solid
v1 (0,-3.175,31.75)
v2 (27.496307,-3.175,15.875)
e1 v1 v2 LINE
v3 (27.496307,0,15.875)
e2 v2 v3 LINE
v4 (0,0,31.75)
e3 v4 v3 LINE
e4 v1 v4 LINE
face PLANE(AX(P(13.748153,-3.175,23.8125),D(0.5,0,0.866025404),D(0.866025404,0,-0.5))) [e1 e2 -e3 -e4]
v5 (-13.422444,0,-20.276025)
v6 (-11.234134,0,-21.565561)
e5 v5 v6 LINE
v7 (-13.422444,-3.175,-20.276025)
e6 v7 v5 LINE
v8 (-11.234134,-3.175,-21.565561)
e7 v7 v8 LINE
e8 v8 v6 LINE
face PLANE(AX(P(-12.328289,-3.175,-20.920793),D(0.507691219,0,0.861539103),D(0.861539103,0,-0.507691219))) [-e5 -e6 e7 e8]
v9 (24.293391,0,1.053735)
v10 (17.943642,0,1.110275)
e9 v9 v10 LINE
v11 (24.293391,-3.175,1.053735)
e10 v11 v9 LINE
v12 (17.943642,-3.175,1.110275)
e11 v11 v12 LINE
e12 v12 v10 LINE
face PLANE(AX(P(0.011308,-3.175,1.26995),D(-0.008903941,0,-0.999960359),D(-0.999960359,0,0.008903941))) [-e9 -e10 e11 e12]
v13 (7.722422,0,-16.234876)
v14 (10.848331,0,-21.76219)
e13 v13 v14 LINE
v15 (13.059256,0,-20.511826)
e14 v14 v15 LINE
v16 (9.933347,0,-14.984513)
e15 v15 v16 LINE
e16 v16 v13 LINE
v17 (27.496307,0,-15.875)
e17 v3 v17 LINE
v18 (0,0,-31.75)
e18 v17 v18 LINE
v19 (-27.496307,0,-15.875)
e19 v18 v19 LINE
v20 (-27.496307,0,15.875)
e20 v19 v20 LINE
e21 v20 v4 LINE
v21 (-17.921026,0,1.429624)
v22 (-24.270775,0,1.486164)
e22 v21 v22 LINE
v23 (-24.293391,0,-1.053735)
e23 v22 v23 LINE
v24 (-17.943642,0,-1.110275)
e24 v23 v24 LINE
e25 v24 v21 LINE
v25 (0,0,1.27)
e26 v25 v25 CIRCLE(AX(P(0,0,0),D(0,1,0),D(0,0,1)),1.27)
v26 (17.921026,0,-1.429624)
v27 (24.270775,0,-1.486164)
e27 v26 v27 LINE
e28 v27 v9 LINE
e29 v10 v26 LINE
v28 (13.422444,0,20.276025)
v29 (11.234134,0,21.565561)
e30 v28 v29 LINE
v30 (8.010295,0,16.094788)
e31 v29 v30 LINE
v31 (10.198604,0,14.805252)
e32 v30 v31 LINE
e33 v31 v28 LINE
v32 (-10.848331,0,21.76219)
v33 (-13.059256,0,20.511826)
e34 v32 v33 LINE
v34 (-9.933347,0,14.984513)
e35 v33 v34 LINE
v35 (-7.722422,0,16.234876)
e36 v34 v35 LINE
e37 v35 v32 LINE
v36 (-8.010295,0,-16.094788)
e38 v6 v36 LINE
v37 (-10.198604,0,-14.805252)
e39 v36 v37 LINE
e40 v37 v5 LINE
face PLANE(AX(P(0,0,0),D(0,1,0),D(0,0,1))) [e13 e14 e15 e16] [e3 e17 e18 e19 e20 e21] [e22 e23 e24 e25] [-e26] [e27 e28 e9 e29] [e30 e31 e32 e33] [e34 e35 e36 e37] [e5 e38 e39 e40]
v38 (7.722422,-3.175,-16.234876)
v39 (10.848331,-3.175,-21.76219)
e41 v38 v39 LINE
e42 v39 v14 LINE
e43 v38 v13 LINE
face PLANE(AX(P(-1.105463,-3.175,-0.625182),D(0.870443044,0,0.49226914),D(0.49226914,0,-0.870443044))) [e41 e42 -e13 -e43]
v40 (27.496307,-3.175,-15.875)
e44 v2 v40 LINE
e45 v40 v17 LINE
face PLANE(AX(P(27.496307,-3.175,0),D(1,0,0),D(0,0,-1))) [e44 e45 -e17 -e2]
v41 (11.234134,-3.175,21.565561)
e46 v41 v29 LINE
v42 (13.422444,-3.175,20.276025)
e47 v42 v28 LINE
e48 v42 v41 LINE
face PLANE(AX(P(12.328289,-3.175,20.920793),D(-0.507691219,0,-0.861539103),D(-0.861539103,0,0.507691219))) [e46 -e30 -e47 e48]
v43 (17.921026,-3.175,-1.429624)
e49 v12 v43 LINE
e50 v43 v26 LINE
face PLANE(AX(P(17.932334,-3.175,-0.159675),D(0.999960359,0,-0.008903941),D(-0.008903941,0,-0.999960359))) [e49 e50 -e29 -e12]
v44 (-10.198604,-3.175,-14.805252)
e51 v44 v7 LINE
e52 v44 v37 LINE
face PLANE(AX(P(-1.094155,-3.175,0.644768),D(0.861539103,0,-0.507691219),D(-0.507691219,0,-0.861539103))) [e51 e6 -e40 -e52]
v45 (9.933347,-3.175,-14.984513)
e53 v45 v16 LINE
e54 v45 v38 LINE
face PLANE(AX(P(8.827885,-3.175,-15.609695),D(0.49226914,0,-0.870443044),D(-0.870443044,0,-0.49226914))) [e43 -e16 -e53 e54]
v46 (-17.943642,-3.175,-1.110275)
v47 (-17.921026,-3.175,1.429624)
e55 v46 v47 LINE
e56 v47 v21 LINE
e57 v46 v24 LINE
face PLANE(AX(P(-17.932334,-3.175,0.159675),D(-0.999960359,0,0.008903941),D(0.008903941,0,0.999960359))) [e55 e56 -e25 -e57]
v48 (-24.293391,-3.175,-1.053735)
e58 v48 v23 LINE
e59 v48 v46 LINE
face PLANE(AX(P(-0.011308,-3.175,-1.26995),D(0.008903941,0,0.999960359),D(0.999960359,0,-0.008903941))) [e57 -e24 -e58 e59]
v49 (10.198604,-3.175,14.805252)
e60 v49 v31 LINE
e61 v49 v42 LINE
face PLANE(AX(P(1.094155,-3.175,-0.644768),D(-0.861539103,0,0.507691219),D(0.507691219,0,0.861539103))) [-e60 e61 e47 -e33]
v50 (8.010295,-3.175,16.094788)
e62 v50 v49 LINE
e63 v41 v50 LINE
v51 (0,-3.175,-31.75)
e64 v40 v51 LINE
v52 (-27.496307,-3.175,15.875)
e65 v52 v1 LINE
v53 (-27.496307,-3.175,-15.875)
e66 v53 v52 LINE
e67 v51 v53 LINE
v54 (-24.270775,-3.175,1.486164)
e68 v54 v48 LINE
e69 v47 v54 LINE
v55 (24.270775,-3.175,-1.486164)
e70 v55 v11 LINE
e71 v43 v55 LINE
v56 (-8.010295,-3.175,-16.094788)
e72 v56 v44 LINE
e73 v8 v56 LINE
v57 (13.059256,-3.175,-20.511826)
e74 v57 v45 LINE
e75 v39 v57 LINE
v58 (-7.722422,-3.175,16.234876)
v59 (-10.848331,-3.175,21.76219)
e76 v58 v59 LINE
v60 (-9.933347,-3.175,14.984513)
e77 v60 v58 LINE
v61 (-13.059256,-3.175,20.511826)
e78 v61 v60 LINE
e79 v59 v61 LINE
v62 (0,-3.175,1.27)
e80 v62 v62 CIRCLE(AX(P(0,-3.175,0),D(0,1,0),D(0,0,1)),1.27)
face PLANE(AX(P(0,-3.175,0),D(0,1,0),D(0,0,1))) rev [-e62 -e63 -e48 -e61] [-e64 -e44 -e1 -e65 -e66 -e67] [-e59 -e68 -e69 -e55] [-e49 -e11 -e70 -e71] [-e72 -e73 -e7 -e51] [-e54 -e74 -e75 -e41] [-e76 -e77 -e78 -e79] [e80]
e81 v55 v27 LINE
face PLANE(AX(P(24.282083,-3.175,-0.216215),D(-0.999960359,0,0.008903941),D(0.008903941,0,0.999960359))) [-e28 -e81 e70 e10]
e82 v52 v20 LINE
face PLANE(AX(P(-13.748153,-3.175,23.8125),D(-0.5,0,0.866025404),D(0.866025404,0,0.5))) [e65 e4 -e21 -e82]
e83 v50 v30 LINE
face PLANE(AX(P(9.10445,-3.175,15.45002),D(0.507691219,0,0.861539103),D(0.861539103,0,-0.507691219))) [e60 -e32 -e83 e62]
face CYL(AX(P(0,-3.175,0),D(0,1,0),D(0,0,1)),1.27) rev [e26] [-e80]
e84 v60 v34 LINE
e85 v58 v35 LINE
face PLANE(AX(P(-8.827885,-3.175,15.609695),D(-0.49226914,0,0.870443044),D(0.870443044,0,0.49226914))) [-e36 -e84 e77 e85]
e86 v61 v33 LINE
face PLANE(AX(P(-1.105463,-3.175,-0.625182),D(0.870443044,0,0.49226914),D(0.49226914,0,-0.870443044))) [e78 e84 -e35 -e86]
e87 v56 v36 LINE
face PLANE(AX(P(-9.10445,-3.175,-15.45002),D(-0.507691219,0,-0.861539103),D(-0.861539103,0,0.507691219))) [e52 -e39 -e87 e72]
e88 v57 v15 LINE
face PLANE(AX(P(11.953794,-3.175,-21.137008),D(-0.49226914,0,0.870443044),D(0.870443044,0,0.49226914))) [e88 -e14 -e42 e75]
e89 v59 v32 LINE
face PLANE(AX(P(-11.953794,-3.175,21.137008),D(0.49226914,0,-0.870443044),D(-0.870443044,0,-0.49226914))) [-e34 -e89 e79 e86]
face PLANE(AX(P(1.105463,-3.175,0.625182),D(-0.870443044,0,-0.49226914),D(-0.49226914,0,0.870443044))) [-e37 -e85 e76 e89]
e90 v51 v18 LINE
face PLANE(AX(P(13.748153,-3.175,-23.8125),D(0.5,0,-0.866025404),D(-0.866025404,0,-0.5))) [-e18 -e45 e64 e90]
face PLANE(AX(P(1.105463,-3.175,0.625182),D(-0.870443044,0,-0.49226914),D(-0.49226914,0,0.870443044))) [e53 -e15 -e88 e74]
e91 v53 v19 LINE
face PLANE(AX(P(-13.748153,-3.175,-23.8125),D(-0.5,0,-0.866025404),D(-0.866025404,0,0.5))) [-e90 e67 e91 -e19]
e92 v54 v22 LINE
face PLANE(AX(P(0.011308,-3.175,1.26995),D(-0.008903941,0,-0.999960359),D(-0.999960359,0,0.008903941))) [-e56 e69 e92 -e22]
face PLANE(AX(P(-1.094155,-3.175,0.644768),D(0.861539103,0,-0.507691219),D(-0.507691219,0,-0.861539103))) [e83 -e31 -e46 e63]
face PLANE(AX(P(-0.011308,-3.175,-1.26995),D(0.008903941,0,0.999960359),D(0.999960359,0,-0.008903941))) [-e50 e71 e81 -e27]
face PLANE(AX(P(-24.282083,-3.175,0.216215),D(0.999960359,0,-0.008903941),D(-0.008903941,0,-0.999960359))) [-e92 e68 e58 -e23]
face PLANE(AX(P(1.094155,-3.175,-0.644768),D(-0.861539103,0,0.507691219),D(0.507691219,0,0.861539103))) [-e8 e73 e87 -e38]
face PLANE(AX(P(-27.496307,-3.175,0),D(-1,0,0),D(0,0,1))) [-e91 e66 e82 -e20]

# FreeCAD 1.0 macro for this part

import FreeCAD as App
import Part
import Sketcher
from FreeCAD import Vector
Q = App.Units.Quantity

doc = App.newDocument("Part")
body = doc.addObject("PartDesign::Body", "Body")

sketch1 = body.newObject("Sketcher::SketchObject", "Sketch")
sketch1.AttachmentSupport = (doc.getObject("XZ_Plane"), [""])
sketch1.MapMode = "FlatFace"
sketch1.addGeometry([
    Part.LineSegment(Vector(27.496307, -15.875, 0), Vector(0, -31.75, 0)),
    Part.LineSegment(Vector(0, -31.75, 0), Vector(-27.496307, -15.875, 0)),
    Part.LineSegment(Vector(-27.496307, -15.875, 0), Vector(-27.496307, 15.875, 0)),
    Part.LineSegment(Vector(-27.496307, 15.875, 0), Vector(0, 31.75, 0)),
    Part.LineSegment(Vector(0, 31.75, 0), Vector(27.496307, 15.875, 0)),
    Part.LineSegment(Vector(27.496307, 15.875, 0), Vector(27.496307, -15.875, 0)),
    Part.LineSegment(Vector(-9.933347, 14.984513, 0), Vector(-7.722422, 16.234876, 0)),
    Part.LineSegment(Vector(-7.722422, 16.234876, 0), Vector(-10.848331, 21.76219, 0)),
    Part.LineSegment(Vector(-10.848331, 21.76219, 0), Vector(-13.059256, 20.511826, 0)),
    Part.LineSegment(Vector(-13.059256, 20.511826, 0), Vector(-9.933347, 14.984513, 0)),
    Part.LineSegment(Vector(-17.943642, -1.110275, 0), Vector(-17.921026, 1.429624, 0)),
    Part.LineSegment(Vector(-17.921026, 1.429624, 0), Vector(-24.270775, 1.486164, 0)),
    Part.LineSegment(Vector(-24.270775, 1.486164, 0), Vector(-24.293391, -1.053735, 0)),
    Part.LineSegment(Vector(-24.293391, -1.053735, 0), Vector(-17.943642, -1.110275, 0)),
    Part.LineSegment(Vector(8.010295, 16.094788, 0), Vector(10.198604, 14.805252, 0)),
    Part.LineSegment(Vector(10.198604, 14.805252, 0), Vector(13.422444, 20.276025, 0)),
    Part.LineSegment(Vector(13.422444, 20.276025, 0), Vector(11.234134, 21.565561, 0)),
    Part.LineSegment(Vector(11.234134, 21.565561, 0), Vector(8.010295, 16.094788, 0)),
    Part.LineSegment(Vector(-10.198604, -14.805252, 0), Vector(-13.422444, -20.276025, 0)),
    Part.LineSegment(Vector(-13.422444, -20.276025, 0), Vector(-11.234134, -21.565561, 0)),
    Part.LineSegment(Vector(-11.234134, -21.565561, 0), Vector(-8.010295, -16.094788, 0)),
    Part.LineSegment(Vector(-8.010295, -16.094788, 0), Vector(-10.198604, -14.805252, 0)),
    Part.Circle(Vector(0, 0, 0), Vector(0, 0, 1), 1.27),
    Part.LineSegment(Vector(17.943642, 1.110275, 0), Vector(17.921026, -1.429624, 0)),
    Part.LineSegment(Vector(17.921026, -1.429624, 0), Vector(24.270775, -1.486164, 0)),
    Part.LineSegment(Vector(24.270775, -1.486164, 0), Vector(24.293391, 1.053735, 0)),
    Part.LineSegment(Vector(24.293391, 1.053735, 0), Vector(17.943642, 1.110275, 0)),
    Part.LineSegment(Vector(9.933347, -14.984513, 0), Vector(7.722422, -16.234876, 0)),
    Part.LineSegment(Vector(7.722422, -16.234876, 0), Vector(10.848331, -21.76219, 0)),
    Part.LineSegment(Vector(10.848331, -21.76219, 0), Vector(13.059256, -20.511826, 0)),
    Part.LineSegment(Vector(13.059256, -20.511826, 0), Vector(9.933347, -14.984513, 0)),
], False)
sketch1.addConstraint([
    Sketcher.Constraint("Coincident", 0, 2, 1, 1),
    Sketcher.Constraint("Coincident", 1, 2, 2, 1),
    Sketcher.Constraint("Coincident", 2, 2, 3, 1),
    Sketcher.Constraint("Coincident", 3, 2, 4, 1),
    Sketcher.Constraint("Coincident", 4, 2, 5, 1),
    Sketcher.Constraint("Coincident", 5, 2, 0, 1),
    Sketcher.Constraint("Coincident", 6, 2, 7, 1),
    Sketcher.Constraint("Coincident", 7, 2, 8, 1),
    Sketcher.Constraint("Coincident", 8, 2, 9, 1),
    Sketcher.Constraint("Coincident", 9, 2, 6, 1),
    Sketcher.Constraint("Coincident", 10, 2, 11, 1),
    Sketcher.Constraint("Coincident", 11, 2, 12, 1),
    Sketcher.Constraint("Coincident", 12, 2, 13, 1),
    Sketcher.Constraint("Coincident", 13, 2, 10, 1),
    Sketcher.Constraint("Coincident", 14, 2, 15, 1),
    Sketcher.Constraint("Coincident", 15, 2, 16, 1),
    Sketcher.Constraint("Coincident", 16, 2, 17, 1),
    Sketcher.Constraint("Coincident", 17, 2, 14, 1),
    Sketcher.Constraint("Coincident", 18, 2, 19, 1),
    Sketcher.Constraint("Coincident", 19, 2, 20, 1),
    Sketcher.Constraint("Coincident", 20, 2, 21, 1),
    Sketcher.Constraint("Coincident", 21, 2, 18, 1),
    Sketcher.Constraint("Coincident", 23, 2, 24, 1),
    Sketcher.Constraint("Coincident", 24, 2, 25, 1),
    Sketcher.Constraint("Coincident", 25, 2, 26, 1),
    Sketcher.Constraint("Coincident", 26, 2, 23, 1),
    Sketcher.Constraint("Coincident", 27, 2, 28, 1),
    Sketcher.Constraint("Coincident", 28, 2, 29, 1),
    Sketcher.Constraint("Coincident", 29, 2, 30, 1),
    Sketcher.Constraint("Coincident", 30, 2, 27, 1),
    Sketcher.Constraint("Vertical", 2),
    Sketcher.Constraint("Vertical", 5),
    Sketcher.Constraint("Coincident", 22, 3, -1, 1),
    Sketcher.Constraint("Symmetric", 0, 2, 3, 2, -1, 1),
    Sketcher.Constraint("Symmetric", 1, 2, 4, 2, -1, 1),
    Sketcher.Constraint("Symmetric", 15, 2, 18, 2, -1, 1),
    Sketcher.Constraint("Symmetric", 16, 2, 19, 2, -1, 1),
    Sketcher.Constraint("Symmetric", 17, 2, 20, 2, -1, 1),
    Sketcher.Constraint("Symmetric", 14, 2, 21, 2, -1, 1),
    Sketcher.Constraint("Symmetric", 10, 2, 23, 2, -1, 1),
    Sketcher.Constraint("Symmetric", 11, 2, 24, 2, -1, 1),
    Sketcher.Constraint("Symmetric", 12, 2, 25, 2, -1, 1),
    Sketcher.Constraint("Symmetric", 13, 2, 26, 2, -1, 1),
    Sketcher.Constraint("Symmetric", 6, 2, 27, 2, -1, 1),
    Sketcher.Constraint("Symmetric", 7, 2, 28, 2, -1, 1),
    Sketcher.Constraint("Symmetric", 8, 2, 29, 2, -1, 1),
    Sketcher.Constraint("Symmetric", 9, 2, 30, 2, -1, 1),
    Sketcher.Constraint("PointOnObject", 0, 2, -2),
    Sketcher.Constraint("Parallel", 0, 3),
    Sketcher.Constraint("Perpendicular", 6, 7),
    Sketcher.Constraint("Perpendicular", 7, 8),
    Sketcher.Constraint("Perpendicular", 8, 9),
    Sketcher.Constraint("Perpendicular", 10, 11),
    Sketcher.Constraint("Perpendicular", 11, 12),
    Sketcher.Constraint("Perpendicular", 12, 13),
    Sketcher.Constraint("Perpendicular", 14, 15),
    Sketcher.Constraint("Perpendicular", 15, 16),
    Sketcher.Constraint("Perpendicular", 16, 17),
    Sketcher.Constraint("Horizontal", 2, 2, 4, 2),
    Sketcher.Constraint("Equal", 8, 10),
    Sketcher.Constraint("Equal", 9, 11),
    Sketcher.Constraint("Equal", 12, 14),
    Sketcher.Constraint("Equal", 13, 15),
    Sketcher.Constraint("Diameter", 22, Q("0.1 in")),
    Sketcher.Constraint("Angle", 0, Q("-150 deg")),
    Sketcher.Constraint("Distance", 6, Q("0.1 in")),
    Sketcher.Constraint("DistanceY", 2, 1, 2, 2, Q("1.25 in")),
    Sketcher.Constraint("DistanceY", 0, 2, 3, 2, Q("2.5 in")),
    Sketcher.Constraint("Distance", 7, Q("0.25 in")),
    Sketcher.Constraint("DistanceX", 13, 2, 18, 2, Q("0.178 in")),
    Sketcher.Constraint("DistanceY", 10, 2, 8, 2, Q("19.082202 mm")),
    Sketcher.Constraint("DistanceX", 7, 2, -1, 1, Q("10.848331 mm")),
    Sketcher.Constraint("DistanceY", -1, 1, 7, 2, Q("21.76219 mm")),
    Sketcher.Constraint("DistanceX", 12, 2, -1, 1, Q("24.293391 mm")),
    Sketcher.Constraint("DistanceY", -1, 1, 14, 2, Q("14.805252 mm")),
    Sketcher.Constraint("DistanceY", -1, 1, 16, 2, Q("21.565561 mm")),
    Sketcher.Constraint("DistanceX", 6, 2, 4, 2, Q("35.218729 mm")),
    Sketcher.Constraint("DistanceX", 10, 2, 9, 2, Q("7.987679 mm")),
])
pad1 = body.newObject("PartDesign::Pad", "Pad")
pad1.Profile = sketch1
pad1.Length = Q("0.125 in")

doc.recompute()
